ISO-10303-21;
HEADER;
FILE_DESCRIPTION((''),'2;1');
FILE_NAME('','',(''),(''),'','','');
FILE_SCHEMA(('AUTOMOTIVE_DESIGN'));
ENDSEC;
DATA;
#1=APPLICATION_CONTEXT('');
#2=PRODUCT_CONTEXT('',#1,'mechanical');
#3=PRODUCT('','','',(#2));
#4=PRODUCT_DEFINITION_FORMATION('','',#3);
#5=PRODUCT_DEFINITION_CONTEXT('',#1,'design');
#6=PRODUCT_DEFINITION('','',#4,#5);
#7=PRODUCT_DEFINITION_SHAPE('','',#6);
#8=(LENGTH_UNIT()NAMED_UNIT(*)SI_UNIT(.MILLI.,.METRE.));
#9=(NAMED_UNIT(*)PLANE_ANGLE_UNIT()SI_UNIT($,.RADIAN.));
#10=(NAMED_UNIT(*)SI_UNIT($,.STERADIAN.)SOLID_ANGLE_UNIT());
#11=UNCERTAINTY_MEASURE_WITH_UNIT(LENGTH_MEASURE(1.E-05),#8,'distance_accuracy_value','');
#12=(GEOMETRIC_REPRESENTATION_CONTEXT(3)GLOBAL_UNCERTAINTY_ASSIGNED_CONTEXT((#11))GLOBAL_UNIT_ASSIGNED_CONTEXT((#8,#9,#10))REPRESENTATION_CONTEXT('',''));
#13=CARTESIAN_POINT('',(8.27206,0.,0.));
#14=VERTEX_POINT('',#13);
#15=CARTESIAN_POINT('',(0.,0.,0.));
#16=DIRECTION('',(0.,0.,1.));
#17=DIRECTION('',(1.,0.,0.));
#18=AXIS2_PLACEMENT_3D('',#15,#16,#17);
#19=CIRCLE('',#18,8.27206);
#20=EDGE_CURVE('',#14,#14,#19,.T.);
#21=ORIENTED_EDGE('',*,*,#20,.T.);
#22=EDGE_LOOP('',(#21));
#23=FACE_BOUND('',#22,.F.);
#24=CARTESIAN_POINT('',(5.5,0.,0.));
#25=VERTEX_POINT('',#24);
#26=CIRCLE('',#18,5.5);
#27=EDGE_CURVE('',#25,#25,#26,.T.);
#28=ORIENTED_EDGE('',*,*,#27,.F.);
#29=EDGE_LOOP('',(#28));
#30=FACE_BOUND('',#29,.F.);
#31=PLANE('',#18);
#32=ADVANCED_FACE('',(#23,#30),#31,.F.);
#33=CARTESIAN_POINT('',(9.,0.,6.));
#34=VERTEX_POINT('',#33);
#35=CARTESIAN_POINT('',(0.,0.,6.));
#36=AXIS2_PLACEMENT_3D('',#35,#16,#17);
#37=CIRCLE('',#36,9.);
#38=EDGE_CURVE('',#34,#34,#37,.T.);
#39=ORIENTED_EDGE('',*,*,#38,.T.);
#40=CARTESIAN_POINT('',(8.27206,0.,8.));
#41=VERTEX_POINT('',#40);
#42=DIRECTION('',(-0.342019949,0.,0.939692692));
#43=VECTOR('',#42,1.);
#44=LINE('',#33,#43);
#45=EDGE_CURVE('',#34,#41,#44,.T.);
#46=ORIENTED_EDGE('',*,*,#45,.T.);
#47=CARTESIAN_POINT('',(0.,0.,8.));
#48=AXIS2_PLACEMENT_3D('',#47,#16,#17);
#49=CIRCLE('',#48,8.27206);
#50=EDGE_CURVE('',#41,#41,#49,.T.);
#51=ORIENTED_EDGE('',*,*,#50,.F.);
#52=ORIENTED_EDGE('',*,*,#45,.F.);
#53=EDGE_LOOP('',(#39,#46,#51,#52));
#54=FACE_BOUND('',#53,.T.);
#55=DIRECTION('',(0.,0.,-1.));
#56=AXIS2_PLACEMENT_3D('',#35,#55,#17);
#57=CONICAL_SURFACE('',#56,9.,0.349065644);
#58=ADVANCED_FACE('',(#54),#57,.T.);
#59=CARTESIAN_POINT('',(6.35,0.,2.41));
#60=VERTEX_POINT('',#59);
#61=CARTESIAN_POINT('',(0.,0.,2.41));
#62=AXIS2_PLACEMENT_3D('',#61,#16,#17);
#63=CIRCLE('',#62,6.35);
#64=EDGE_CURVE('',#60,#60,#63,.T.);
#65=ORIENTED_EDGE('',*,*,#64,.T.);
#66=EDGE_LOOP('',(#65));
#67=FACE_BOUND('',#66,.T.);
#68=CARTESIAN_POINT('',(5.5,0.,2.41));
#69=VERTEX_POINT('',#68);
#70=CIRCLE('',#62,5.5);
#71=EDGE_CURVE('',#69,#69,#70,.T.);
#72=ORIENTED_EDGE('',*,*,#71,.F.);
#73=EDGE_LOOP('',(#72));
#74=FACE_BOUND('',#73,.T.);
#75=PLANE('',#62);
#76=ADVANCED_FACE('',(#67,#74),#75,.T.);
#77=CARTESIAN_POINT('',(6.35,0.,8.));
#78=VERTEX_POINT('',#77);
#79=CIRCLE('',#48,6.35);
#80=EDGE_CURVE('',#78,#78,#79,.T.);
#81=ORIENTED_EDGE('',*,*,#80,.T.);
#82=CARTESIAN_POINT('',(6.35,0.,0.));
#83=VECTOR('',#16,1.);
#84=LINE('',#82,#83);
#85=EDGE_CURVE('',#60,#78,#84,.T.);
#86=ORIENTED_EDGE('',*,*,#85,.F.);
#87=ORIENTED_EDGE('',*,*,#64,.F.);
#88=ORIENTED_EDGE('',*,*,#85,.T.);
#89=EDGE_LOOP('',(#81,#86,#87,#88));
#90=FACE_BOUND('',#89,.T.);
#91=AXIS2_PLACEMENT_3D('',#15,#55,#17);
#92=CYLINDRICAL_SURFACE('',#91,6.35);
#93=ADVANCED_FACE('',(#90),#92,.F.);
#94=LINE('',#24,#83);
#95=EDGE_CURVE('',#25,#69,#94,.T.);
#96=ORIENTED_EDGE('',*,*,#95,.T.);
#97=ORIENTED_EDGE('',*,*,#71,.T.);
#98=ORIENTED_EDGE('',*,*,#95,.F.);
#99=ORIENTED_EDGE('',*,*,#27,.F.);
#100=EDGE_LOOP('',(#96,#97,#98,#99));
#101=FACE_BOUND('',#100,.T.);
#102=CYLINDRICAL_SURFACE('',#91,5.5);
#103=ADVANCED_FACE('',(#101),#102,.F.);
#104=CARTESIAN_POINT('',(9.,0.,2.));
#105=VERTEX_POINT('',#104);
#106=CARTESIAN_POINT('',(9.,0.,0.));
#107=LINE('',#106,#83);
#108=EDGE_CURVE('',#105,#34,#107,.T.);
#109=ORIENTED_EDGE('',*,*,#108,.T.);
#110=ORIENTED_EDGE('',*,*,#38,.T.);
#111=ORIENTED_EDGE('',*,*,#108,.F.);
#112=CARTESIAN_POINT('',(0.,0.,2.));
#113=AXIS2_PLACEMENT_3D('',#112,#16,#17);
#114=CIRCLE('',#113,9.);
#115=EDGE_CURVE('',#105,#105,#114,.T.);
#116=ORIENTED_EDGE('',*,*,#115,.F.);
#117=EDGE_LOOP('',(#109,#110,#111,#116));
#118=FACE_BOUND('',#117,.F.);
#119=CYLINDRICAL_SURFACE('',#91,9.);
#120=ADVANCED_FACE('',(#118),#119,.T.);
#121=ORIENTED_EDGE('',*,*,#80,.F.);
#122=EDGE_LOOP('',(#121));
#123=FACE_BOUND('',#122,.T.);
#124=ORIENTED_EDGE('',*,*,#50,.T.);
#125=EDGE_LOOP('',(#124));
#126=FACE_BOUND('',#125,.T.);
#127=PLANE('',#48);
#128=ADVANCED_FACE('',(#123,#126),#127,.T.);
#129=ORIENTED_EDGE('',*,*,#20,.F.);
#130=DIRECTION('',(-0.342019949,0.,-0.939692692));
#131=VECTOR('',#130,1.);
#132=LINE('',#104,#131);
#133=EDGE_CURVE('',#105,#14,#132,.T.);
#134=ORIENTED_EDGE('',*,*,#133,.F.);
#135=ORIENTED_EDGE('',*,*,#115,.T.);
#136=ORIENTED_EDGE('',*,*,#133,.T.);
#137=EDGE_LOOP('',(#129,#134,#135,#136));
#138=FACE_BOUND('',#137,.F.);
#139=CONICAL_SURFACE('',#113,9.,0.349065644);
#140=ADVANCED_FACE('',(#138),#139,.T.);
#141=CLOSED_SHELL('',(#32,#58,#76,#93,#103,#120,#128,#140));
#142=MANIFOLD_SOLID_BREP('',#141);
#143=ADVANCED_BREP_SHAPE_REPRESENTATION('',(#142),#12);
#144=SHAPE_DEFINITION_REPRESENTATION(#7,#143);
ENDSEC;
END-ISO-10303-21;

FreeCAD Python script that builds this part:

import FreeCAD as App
import Part
import Sketcher
from FreeCAD import Vector
Q = App.Units.Quantity


def edges_at(feature, points):
    """Names of the edges that pass closest to the given points."""
    edges = feature.Shape.Edges
    near = lambda p: min(range(len(edges)), key=lambda i: edges[i].distToShape(Part.Vertex(*p))[0])
    return sorted({f"Edge{near(p) + 1}" for p in points})

doc = App.newDocument("Part")
body = doc.addObject("PartDesign::Body", "Body")

# Sketch on XY plane
sketch1 = doc.addObject("Sketcher::SketchObject", "Sketch")
body.addObject(sketch1)
sketch1.AttachmentSupport = (doc.XY_Plane, [""])
sketch1.MapMode = "FlatFace"
sketch1.addGeometry(Part.Circle(Vector(0, 0, 0), Vector(0, 0, 1), 6.35), False)
sketch1.addGeometry(Part.Circle(Vector(0, 0, 0), Vector(0, 0, 1), 5.5), False)
sketch1.addConstraint(Sketcher.Constraint("Coincident", 0, 3, -1, 1))
sketch1.addConstraint(Sketcher.Constraint("Coincident", 1, 3, -1, 1))
sketch1.addConstraint(Sketcher.Constraint("Diameter", 1, Q("11 mm")))
sketch1.addConstraint(Sketcher.Constraint("Diameter", 0, Q("12.7 mm")))
pad1 = doc.addObject("PartDesign::Pad", "Pad")
body.addObject(pad1)
pad1.Profile = sketch1
pad1.Length = 2.41

# Sketch on XY plane
sketch2 = doc.addObject("Sketcher::SketchObject", "Sketch001")
body.addObject(sketch2)
sketch2.AttachmentSupport = (doc.XY_Plane, [""])
sketch2.MapMode = "FlatFace"
sketch2.addGeometry(Part.Circle(Vector(0, 0, 0), Vector(0, 0, 1), 9), False)
sketch2.addGeometry(Part.Circle(Vector(0, 0, 0), Vector(0, 0, 1), 6.35), False)
sketch2.addConstraint(Sketcher.Constraint("Coincident", 0, 3, -1, 1))
sketch2.addConstraint(Sketcher.Constraint("Coincident", 1, 3, -1, 1))
sketch2.addConstraint(Sketcher.Constraint("Diameter", 0, Q("18 mm")))
sketch2.addConstraint(Sketcher.Constraint("Diameter", 1, Q("12.7 mm")))
pad2 = doc.addObject("PartDesign::Pad", "Pad001")
body.addObject(pad2)
pad2.Profile = sketch2
pad2.Length = 8
doc.recompute()

chamfer = doc.addObject("PartDesign::Chamfer", "Chamfer")
body.addObject(chamfer)
chamfer.Base = (pad2, edges_at(pad2, [(-9, 0, 0)]))
chamfer.ChamferType = "Two distances"
chamfer.Size = 2
chamfer.Size2 = 0.72794
doc.recompute()

chamfer2 = doc.addObject("PartDesign::Chamfer", "Chamfer001")
body.addObject(chamfer2)
chamfer2.Base = (chamfer, edges_at(chamfer, [(-9, 0, 8)]))
chamfer2.ChamferType = "Two distances"
chamfer2.Size = 2
chamfer2.Size2 = 0.72794

doc.recompute()
